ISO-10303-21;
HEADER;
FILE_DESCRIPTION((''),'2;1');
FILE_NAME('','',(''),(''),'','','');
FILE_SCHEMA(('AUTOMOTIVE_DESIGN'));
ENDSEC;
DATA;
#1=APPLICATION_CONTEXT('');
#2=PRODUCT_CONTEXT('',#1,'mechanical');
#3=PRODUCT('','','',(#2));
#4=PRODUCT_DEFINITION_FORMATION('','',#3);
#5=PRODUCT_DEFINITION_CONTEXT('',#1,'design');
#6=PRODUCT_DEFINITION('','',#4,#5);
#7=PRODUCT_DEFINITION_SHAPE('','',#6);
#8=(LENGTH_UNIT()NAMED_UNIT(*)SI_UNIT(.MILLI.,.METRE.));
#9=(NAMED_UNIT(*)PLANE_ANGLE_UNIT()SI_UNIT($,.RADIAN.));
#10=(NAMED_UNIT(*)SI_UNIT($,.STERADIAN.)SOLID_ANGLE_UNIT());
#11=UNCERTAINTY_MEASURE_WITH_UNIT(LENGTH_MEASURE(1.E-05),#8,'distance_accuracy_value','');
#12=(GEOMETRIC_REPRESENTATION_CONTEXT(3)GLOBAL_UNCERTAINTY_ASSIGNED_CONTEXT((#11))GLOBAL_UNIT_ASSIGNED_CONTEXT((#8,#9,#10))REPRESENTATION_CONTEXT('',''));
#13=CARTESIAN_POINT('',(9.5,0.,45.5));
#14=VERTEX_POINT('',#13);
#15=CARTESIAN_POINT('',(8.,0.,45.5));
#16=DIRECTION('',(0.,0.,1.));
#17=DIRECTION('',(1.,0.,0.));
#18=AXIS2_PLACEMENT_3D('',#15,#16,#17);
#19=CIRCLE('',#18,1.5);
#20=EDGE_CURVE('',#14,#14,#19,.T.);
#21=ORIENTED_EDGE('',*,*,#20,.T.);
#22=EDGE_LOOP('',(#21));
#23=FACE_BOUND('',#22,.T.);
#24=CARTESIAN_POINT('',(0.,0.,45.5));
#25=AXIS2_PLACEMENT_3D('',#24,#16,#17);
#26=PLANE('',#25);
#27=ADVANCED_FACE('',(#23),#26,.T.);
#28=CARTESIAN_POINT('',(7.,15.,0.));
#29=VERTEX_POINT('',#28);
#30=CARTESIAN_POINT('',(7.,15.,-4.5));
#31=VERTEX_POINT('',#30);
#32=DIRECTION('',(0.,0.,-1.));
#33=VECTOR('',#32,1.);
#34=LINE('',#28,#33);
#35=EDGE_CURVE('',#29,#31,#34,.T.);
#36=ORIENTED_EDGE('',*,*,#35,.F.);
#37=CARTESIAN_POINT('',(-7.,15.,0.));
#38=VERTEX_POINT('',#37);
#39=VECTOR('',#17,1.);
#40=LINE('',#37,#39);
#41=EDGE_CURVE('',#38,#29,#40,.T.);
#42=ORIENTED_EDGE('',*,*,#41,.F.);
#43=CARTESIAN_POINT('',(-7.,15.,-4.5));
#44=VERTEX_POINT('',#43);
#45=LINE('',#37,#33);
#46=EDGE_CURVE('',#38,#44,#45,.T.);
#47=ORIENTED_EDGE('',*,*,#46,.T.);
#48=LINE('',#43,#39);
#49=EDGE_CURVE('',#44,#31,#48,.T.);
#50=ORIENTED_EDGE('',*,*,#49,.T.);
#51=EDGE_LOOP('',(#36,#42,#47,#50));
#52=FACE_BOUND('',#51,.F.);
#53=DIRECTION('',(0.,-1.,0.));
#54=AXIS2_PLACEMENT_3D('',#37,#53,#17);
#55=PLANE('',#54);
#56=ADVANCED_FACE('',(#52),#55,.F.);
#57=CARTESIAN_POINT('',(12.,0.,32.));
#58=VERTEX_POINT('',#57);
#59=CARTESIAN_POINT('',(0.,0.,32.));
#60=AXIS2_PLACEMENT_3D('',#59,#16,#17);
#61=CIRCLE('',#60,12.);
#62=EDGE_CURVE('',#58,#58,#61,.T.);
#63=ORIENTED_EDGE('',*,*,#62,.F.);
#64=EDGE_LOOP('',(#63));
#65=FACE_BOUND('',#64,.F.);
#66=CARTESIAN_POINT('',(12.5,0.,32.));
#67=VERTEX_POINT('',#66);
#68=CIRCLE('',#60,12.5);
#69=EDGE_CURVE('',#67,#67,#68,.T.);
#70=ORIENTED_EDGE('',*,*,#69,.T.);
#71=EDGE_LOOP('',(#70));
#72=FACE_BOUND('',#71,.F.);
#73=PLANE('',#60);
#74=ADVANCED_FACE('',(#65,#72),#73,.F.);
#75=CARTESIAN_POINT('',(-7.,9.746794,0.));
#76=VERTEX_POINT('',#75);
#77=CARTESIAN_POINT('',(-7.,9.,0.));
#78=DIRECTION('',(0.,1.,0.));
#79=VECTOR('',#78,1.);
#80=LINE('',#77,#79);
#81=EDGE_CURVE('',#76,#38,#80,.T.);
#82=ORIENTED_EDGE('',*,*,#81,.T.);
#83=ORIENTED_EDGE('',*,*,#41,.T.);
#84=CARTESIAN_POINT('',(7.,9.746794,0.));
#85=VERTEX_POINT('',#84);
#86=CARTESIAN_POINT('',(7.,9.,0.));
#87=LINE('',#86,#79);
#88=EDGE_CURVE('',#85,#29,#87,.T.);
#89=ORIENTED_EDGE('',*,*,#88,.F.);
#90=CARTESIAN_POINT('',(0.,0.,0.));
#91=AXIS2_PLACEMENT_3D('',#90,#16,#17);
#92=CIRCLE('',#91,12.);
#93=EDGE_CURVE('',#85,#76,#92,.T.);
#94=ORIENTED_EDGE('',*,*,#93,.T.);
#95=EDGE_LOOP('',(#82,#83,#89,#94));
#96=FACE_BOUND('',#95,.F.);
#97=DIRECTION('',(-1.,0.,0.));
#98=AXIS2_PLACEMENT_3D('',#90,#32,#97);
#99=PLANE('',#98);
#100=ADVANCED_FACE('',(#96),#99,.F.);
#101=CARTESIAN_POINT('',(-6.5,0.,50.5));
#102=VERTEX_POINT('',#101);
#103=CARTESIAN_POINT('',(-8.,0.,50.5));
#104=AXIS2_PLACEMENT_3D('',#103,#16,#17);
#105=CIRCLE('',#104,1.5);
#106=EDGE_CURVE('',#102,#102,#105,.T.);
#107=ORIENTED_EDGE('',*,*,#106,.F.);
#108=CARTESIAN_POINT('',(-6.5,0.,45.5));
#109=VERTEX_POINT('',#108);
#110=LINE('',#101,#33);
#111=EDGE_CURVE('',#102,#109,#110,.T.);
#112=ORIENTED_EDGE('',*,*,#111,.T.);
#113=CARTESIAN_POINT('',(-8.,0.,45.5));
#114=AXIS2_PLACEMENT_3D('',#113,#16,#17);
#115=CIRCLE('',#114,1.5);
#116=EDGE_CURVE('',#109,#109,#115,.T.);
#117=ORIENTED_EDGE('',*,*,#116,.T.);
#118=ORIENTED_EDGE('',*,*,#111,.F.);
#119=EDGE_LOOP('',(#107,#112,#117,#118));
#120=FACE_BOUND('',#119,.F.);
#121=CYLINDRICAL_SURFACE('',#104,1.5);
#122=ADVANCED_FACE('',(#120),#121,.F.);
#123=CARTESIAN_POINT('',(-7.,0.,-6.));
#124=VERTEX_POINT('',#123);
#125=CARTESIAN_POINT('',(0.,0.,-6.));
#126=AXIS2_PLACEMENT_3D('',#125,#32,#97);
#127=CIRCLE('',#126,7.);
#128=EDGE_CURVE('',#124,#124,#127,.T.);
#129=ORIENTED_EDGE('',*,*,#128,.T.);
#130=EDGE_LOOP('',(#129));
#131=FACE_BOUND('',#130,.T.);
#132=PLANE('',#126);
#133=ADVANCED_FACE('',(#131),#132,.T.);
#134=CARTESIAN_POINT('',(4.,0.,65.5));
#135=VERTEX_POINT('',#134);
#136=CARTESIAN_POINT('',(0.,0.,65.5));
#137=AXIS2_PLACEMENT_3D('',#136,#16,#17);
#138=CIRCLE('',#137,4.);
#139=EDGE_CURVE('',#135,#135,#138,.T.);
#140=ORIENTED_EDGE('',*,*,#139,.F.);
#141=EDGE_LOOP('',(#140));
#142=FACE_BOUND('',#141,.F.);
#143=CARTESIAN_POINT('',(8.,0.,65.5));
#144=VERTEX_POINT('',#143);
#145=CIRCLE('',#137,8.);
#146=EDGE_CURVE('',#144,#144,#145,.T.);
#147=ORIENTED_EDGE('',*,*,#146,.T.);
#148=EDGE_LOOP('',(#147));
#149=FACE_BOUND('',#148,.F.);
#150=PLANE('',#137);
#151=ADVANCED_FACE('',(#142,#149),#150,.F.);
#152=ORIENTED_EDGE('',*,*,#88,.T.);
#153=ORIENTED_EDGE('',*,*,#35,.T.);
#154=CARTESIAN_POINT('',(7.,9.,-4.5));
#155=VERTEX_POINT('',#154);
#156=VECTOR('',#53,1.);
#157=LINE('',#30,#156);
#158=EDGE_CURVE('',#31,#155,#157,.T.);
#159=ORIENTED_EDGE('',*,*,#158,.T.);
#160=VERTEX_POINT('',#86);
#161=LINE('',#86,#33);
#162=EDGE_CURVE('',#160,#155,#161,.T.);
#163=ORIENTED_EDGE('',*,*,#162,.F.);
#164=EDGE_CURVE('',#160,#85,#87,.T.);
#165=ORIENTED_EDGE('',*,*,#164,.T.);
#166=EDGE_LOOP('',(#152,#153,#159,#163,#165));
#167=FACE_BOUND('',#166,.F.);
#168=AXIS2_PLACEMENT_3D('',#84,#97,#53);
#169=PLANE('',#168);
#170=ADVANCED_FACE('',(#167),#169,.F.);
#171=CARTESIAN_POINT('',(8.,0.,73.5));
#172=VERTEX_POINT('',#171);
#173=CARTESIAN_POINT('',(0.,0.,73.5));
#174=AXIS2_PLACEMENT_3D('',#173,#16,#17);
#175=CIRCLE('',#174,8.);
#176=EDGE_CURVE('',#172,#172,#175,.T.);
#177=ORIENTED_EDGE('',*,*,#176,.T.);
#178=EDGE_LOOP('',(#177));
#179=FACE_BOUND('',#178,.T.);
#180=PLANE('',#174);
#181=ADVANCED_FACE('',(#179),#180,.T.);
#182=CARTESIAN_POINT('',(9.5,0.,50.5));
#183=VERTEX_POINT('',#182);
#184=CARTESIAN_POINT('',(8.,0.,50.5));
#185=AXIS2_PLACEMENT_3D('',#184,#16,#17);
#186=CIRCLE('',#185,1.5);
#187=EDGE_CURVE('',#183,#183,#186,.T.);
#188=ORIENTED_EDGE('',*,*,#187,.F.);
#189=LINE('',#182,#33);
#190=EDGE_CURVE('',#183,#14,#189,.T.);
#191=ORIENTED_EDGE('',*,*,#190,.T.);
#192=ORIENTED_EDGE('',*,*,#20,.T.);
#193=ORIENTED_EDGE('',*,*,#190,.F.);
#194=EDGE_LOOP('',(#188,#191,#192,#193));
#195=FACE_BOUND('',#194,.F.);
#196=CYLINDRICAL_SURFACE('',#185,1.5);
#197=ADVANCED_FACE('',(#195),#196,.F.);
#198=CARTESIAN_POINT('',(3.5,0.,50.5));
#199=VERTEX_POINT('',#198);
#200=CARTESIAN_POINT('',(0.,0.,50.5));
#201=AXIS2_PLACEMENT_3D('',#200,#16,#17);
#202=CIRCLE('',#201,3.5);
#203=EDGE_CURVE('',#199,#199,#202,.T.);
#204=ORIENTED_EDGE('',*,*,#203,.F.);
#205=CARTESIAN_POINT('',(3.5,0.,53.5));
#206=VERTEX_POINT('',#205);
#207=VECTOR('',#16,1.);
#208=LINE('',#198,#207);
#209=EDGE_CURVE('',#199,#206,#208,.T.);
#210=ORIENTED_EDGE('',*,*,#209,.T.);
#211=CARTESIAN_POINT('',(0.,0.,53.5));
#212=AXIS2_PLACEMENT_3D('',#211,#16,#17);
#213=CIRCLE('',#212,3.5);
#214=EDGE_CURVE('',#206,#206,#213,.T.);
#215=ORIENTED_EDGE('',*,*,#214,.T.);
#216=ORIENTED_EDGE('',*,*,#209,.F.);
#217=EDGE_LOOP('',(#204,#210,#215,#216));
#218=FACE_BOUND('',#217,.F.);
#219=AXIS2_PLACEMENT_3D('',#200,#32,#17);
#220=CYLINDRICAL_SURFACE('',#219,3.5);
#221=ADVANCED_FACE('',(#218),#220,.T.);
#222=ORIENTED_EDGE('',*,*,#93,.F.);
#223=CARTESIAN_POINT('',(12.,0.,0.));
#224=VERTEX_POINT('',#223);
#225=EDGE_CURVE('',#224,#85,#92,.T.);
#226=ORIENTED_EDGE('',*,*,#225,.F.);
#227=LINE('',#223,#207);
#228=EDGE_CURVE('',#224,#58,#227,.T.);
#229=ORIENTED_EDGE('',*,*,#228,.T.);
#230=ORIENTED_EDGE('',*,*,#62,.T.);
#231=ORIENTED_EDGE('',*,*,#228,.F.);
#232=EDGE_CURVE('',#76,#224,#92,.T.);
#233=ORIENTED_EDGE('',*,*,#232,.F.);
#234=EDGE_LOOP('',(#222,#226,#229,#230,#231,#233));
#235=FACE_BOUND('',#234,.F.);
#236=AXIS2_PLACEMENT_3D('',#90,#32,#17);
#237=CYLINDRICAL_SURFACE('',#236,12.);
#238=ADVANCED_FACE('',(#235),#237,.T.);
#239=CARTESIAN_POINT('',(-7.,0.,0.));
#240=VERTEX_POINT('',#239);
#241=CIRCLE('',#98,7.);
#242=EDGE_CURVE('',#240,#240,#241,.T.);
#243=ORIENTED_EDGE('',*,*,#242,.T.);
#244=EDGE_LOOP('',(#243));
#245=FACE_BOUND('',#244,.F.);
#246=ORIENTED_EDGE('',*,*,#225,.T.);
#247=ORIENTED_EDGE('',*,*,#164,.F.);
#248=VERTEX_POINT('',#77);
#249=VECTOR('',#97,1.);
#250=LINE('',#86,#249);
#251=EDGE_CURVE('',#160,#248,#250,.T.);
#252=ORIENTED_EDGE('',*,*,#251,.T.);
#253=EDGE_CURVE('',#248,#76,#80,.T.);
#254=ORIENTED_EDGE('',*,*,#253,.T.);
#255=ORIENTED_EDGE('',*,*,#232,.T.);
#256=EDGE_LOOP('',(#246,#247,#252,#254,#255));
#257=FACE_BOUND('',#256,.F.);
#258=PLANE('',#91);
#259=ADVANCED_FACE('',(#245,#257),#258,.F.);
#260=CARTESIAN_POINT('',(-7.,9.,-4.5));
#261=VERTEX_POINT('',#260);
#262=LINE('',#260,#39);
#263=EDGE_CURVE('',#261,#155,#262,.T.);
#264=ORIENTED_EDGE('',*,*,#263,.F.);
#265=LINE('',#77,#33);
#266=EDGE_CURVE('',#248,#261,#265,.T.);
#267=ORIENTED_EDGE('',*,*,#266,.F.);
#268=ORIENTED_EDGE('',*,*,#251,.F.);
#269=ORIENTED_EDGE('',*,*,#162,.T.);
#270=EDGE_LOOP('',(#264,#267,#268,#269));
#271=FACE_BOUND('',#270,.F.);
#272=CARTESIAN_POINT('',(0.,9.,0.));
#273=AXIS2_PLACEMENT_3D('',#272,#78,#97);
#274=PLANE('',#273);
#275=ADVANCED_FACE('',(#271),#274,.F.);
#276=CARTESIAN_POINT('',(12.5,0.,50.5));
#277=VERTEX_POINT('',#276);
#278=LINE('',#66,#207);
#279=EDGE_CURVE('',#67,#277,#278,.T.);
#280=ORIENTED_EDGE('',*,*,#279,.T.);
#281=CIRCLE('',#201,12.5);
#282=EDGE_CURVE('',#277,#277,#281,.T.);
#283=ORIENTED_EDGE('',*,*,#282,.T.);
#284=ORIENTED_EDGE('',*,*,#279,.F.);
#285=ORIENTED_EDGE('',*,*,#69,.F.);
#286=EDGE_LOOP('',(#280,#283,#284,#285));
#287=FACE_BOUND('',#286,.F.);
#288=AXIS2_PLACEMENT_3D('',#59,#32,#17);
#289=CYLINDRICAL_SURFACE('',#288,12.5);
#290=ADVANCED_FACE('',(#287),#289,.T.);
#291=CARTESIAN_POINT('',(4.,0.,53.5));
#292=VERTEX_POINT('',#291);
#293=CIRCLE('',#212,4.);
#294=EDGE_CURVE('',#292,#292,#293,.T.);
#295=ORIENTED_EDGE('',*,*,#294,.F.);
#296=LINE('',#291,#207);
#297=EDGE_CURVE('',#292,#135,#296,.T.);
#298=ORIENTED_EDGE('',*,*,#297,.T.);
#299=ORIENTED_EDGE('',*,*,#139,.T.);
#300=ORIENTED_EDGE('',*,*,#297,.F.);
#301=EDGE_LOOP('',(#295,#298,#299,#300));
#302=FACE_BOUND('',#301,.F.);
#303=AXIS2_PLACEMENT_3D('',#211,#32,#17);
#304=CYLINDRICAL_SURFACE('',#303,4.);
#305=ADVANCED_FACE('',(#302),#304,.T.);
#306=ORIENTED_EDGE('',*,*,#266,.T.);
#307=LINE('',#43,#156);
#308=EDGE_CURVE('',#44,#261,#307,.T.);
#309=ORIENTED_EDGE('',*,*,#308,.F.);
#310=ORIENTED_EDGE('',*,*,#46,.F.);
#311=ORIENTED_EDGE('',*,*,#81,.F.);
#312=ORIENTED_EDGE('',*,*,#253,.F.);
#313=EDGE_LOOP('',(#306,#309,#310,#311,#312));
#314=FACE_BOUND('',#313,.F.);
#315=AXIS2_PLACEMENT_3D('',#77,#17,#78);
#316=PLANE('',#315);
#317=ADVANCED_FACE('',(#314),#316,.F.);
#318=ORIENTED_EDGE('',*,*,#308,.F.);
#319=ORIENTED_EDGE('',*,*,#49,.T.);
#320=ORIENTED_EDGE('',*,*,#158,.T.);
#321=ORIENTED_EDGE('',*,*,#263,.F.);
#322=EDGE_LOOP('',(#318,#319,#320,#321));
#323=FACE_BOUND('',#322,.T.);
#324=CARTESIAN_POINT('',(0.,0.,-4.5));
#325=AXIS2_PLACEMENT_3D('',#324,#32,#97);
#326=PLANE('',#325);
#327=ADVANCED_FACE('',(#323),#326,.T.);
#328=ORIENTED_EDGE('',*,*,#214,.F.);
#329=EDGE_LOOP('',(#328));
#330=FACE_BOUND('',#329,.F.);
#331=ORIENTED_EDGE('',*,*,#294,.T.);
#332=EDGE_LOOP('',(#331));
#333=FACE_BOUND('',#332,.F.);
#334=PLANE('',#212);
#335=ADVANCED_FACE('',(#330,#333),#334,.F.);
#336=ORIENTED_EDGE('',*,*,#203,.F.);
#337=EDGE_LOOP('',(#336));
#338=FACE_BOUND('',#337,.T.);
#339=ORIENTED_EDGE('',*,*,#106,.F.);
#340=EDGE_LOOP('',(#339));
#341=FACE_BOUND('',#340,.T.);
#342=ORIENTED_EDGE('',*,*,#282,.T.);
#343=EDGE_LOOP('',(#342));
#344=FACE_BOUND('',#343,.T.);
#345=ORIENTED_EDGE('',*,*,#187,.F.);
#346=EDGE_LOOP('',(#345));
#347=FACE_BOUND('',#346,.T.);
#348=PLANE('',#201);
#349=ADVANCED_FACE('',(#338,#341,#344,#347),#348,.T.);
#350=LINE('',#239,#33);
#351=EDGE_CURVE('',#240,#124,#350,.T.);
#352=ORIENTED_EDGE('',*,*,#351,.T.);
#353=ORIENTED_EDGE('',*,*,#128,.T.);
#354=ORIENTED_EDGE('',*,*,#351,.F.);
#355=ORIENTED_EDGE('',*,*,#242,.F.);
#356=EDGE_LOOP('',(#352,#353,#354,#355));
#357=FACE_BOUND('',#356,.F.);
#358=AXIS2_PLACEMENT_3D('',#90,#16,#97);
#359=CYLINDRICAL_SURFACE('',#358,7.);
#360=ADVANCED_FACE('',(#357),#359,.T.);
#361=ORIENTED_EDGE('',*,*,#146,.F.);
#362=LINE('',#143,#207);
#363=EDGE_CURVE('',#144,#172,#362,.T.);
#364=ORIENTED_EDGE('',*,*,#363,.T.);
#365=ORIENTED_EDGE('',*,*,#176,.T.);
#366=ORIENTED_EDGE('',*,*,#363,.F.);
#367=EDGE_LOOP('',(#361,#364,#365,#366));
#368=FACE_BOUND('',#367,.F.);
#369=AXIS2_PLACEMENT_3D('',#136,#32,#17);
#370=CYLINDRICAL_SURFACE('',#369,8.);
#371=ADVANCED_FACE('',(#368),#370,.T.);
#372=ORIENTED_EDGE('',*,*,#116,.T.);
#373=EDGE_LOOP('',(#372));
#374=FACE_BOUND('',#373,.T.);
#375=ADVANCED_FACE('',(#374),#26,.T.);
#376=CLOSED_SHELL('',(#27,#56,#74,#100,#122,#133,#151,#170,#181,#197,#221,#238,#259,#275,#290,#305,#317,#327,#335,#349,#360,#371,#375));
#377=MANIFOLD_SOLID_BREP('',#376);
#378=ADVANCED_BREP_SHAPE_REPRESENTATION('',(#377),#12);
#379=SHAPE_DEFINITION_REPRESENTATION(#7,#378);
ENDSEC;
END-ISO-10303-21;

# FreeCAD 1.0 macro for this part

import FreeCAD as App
import Part
import Sketcher
Q = App.Units.Quantity

doc = App.newDocument("Part")
body = doc.addObject("PartDesign::Body", "Body")

# Sketch on XY plane
sketch1 = body.newObject("Sketcher::SketchObject", "Sketch")
sketch1.AttachmentSupport = (doc.getObject("XY_Plane"), [""])
sketch1.MapMode = "FlatFace"
sketch1.addGeometry(Part.Circle(App.Vector(0, 0, 0), App.Vector(0, 0, 1), 12), False)
sketch1.addConstraint(Sketcher.Constraint("Coincident", 0, 3, -1, 1))
sketch1.addConstraint(Sketcher.Constraint("Diameter", 0, Q("24 mm")))
pad1 = body.newObject("PartDesign::Pad", "Pad")
pad1.Profile = sketch1
pad1.Length = 32

# Sketch on XY plane
sketch2 = body.newObject("Sketcher::SketchObject", "Sketch001")
sketch2.AttachmentSupport = (doc.getObject("XY_Plane"), [""])
sketch2.MapMode = "FlatFace"
sketch2.AttachmentOffset = App.Placement(App.Vector(0, 0, 32), App.Rotation())
sketch2.addGeometry(Part.Circle(App.Vector(0, 0, 0), App.Vector(0, 0, 1), 12), False)
sketch2.addConstraint(Sketcher.Constraint("Coincident", 0, 3, -1, 1))
sketch2.addConstraint(Sketcher.Constraint("Diameter", 0, Q("25 mm")))
pad2 = body.newObject("PartDesign::Pad", "Pad001")
pad2.Profile = sketch2
pad2.Length = 18.5

# Sketch on XY plane
sketch3 = body.newObject("Sketcher::SketchObject", "Sketch002")
sketch3.AttachmentSupport = (doc.getObject("XY_Plane"), [""])
sketch3.MapMode = "FlatFace"
sketch3.AttachmentOffset = App.Placement(App.Vector(0, 0, 50.5), App.Rotation())
sketch3.addGeometry(Part.Circle(App.Vector(0, 0, 0), App.Vector(0, 0, 1), 3.5), False)
sketch3.addConstraint(Sketcher.Constraint("Coincident", 0, 3, -1, 1))
sketch3.addConstraint(Sketcher.Constraint("Diameter", 0, Q("7 mm")))
pad3 = body.newObject("PartDesign::Pad", "Pad002")
pad3.Profile = sketch3
pad3.Length = 3

# Sketch on XY plane
sketch4 = body.newObject("Sketcher::SketchObject", "Sketch003")
sketch4.AttachmentSupport = (doc.getObject("XY_Plane"), [""])
sketch4.MapMode = "FlatFace"
sketch4.addGeometry(Part.Circle(App.Vector(0, 0, 0), App.Vector(0, 0, 1), 7), False)
sketch4.addConstraint(Sketcher.Constraint("Coincident", 0, 3, -1, 1))
sketch4.addConstraint(Sketcher.Constraint("Diameter", 0, Q("14 mm")))
pad4 = body.newObject("PartDesign::Pad", "Pad003")
pad4.Profile = sketch4
pad4.Length = 6
pad4.Reversed = True

# Sketch on XY plane
sketch5 = body.newObject("Sketcher::SketchObject", "Sketch004")
sketch5.AttachmentSupport = (doc.getObject("XY_Plane"), [""])
sketch5.MapMode = "FlatFace"
sketch5.addGeometry(Part.LineSegment(App.Vector(-7, 9, 0), App.Vector(-7, 15, 0)), False)
sketch5.addGeometry(Part.LineSegment(App.Vector(-7, 15, 0), App.Vector(7, 15, 0)), False)
sketch5.addGeometry(Part.LineSegment(App.Vector(7, 15, 0), App.Vector(7, 9, 0)), False)
sketch5.addGeometry(Part.LineSegment(App.Vector(7, 9, 0), App.Vector(-7, 9, 0)), False)
sketch5.addConstraint(Sketcher.Constraint("Coincident", 0, 2, 1, 1))
sketch5.addConstraint(Sketcher.Constraint("Coincident", 1, 2, 2, 1))
sketch5.addConstraint(Sketcher.Constraint("Coincident", 2, 2, 3, 1))
sketch5.addConstraint(Sketcher.Constraint("Coincident", 3, 2, 0, 1))
sketch5.addConstraint(Sketcher.Constraint("Vertical", 0))
sketch5.addConstraint(Sketcher.Constraint("Horizontal", 1))
sketch5.addConstraint(Sketcher.Constraint("Vertical", 2))
sketch5.addConstraint(Sketcher.Constraint("Horizontal", 3))
sketch5.addConstraint(Sketcher.Constraint("DistanceX", 1, 1, 1, 2, Q("14 mm")))
sketch5.addConstraint(Sketcher.Constraint("DistanceX", 0, 2, -1, 1, Q("7 mm")))
sketch5.addConstraint(Sketcher.Constraint("DistanceY", 0, 1, 0, 2, Q("6 mm")))
sketch5.addConstraint(Sketcher.Constraint("DistanceY", -1, 1, 0, 2, Q("15 mm")))
pad5 = body.newObject("PartDesign::Pad", "Pad004")
pad5.Profile = sketch5
pad5.Length = 4.5
pad5.Reversed = True

# Sketch on XY plane
sketch6 = body.newObject("Sketcher::SketchObject", "Sketch005")
sketch6.AttachmentSupport = (doc.getObject("XY_Plane"), [""])
sketch6.MapMode = "FlatFace"
sketch6.AttachmentOffset = App.Placement(App.Vector(0, 0, 50.5), App.Rotation())
sketch6.addGeometry(Part.Circle(App.Vector(-8, 0, 0), App.Vector(0, 0, 1), 1.5), False)
sketch6.addGeometry(Part.Circle(App.Vector(8, 0, 0), App.Vector(0, 0, 1), 1.5), False)
sketch6.addConstraint(Sketcher.Constraint("Equal", 0, 1))
sketch6.addConstraint(Sketcher.Constraint("Symmetric", 0, 3, 1, 3, -1, 1))
sketch6.addConstraint(Sketcher.Constraint("PointOnObject", 0, 3, -1))
sketch6.addConstraint(Sketcher.Constraint("Diameter", 0, Q("3 mm")))
sketch6.addConstraint(Sketcher.Constraint("DistanceX", 0, 3, -1, 1, Q("8 mm")))
pocket1 = body.newObject("PartDesign::Pocket", "Pocket")
pocket1.Profile = sketch6
pocket1.Length = 5

# Sketch on XY plane
sketch7 = body.newObject("Sketcher::SketchObject", "Sketch006")
sketch7.AttachmentSupport = (doc.getObject("XY_Plane"), [""])
sketch7.MapMode = "FlatFace"
sketch7.AttachmentOffset = App.Placement(App.Vector(0, 0, 53.5), App.Rotation())
sketch7.addGeometry(Part.Circle(App.Vector(0, 0, 0), App.Vector(0, 0, 1), 4), False)
sketch7.addConstraint(Sketcher.Constraint("Coincident", 0, 3, -1, 1))
sketch7.addConstraint(Sketcher.Constraint("Diameter", 0, Q("8 mm")))
pad6 = body.newObject("PartDesign::Pad", "Pad005")
pad6.Profile = sketch7
pad6.Length = 12

# Sketch on XY plane
sketch8 = body.newObject("Sketcher::SketchObject", "Sketch007")
sketch8.AttachmentSupport = (doc.getObject("XY_Plane"), [""])
sketch8.MapMode = "FlatFace"
sketch8.AttachmentOffset = App.Placement(App.Vector(0, 0, 65.5), App.Rotation())
sketch8.addGeometry(Part.Circle(App.Vector(0, 0, 0), App.Vector(0, 0, 1), 8), False)
sketch8.addConstraint(Sketcher.Constraint("Coincident", 0, 3, -1, 1))
sketch8.addConstraint(Sketcher.Constraint("Diameter", 0, Q("16 mm")))
pad7 = body.newObject("PartDesign::Pad", "Pad006")
pad7.Profile = sketch8
pad7.Length = 8

doc.recompute()
